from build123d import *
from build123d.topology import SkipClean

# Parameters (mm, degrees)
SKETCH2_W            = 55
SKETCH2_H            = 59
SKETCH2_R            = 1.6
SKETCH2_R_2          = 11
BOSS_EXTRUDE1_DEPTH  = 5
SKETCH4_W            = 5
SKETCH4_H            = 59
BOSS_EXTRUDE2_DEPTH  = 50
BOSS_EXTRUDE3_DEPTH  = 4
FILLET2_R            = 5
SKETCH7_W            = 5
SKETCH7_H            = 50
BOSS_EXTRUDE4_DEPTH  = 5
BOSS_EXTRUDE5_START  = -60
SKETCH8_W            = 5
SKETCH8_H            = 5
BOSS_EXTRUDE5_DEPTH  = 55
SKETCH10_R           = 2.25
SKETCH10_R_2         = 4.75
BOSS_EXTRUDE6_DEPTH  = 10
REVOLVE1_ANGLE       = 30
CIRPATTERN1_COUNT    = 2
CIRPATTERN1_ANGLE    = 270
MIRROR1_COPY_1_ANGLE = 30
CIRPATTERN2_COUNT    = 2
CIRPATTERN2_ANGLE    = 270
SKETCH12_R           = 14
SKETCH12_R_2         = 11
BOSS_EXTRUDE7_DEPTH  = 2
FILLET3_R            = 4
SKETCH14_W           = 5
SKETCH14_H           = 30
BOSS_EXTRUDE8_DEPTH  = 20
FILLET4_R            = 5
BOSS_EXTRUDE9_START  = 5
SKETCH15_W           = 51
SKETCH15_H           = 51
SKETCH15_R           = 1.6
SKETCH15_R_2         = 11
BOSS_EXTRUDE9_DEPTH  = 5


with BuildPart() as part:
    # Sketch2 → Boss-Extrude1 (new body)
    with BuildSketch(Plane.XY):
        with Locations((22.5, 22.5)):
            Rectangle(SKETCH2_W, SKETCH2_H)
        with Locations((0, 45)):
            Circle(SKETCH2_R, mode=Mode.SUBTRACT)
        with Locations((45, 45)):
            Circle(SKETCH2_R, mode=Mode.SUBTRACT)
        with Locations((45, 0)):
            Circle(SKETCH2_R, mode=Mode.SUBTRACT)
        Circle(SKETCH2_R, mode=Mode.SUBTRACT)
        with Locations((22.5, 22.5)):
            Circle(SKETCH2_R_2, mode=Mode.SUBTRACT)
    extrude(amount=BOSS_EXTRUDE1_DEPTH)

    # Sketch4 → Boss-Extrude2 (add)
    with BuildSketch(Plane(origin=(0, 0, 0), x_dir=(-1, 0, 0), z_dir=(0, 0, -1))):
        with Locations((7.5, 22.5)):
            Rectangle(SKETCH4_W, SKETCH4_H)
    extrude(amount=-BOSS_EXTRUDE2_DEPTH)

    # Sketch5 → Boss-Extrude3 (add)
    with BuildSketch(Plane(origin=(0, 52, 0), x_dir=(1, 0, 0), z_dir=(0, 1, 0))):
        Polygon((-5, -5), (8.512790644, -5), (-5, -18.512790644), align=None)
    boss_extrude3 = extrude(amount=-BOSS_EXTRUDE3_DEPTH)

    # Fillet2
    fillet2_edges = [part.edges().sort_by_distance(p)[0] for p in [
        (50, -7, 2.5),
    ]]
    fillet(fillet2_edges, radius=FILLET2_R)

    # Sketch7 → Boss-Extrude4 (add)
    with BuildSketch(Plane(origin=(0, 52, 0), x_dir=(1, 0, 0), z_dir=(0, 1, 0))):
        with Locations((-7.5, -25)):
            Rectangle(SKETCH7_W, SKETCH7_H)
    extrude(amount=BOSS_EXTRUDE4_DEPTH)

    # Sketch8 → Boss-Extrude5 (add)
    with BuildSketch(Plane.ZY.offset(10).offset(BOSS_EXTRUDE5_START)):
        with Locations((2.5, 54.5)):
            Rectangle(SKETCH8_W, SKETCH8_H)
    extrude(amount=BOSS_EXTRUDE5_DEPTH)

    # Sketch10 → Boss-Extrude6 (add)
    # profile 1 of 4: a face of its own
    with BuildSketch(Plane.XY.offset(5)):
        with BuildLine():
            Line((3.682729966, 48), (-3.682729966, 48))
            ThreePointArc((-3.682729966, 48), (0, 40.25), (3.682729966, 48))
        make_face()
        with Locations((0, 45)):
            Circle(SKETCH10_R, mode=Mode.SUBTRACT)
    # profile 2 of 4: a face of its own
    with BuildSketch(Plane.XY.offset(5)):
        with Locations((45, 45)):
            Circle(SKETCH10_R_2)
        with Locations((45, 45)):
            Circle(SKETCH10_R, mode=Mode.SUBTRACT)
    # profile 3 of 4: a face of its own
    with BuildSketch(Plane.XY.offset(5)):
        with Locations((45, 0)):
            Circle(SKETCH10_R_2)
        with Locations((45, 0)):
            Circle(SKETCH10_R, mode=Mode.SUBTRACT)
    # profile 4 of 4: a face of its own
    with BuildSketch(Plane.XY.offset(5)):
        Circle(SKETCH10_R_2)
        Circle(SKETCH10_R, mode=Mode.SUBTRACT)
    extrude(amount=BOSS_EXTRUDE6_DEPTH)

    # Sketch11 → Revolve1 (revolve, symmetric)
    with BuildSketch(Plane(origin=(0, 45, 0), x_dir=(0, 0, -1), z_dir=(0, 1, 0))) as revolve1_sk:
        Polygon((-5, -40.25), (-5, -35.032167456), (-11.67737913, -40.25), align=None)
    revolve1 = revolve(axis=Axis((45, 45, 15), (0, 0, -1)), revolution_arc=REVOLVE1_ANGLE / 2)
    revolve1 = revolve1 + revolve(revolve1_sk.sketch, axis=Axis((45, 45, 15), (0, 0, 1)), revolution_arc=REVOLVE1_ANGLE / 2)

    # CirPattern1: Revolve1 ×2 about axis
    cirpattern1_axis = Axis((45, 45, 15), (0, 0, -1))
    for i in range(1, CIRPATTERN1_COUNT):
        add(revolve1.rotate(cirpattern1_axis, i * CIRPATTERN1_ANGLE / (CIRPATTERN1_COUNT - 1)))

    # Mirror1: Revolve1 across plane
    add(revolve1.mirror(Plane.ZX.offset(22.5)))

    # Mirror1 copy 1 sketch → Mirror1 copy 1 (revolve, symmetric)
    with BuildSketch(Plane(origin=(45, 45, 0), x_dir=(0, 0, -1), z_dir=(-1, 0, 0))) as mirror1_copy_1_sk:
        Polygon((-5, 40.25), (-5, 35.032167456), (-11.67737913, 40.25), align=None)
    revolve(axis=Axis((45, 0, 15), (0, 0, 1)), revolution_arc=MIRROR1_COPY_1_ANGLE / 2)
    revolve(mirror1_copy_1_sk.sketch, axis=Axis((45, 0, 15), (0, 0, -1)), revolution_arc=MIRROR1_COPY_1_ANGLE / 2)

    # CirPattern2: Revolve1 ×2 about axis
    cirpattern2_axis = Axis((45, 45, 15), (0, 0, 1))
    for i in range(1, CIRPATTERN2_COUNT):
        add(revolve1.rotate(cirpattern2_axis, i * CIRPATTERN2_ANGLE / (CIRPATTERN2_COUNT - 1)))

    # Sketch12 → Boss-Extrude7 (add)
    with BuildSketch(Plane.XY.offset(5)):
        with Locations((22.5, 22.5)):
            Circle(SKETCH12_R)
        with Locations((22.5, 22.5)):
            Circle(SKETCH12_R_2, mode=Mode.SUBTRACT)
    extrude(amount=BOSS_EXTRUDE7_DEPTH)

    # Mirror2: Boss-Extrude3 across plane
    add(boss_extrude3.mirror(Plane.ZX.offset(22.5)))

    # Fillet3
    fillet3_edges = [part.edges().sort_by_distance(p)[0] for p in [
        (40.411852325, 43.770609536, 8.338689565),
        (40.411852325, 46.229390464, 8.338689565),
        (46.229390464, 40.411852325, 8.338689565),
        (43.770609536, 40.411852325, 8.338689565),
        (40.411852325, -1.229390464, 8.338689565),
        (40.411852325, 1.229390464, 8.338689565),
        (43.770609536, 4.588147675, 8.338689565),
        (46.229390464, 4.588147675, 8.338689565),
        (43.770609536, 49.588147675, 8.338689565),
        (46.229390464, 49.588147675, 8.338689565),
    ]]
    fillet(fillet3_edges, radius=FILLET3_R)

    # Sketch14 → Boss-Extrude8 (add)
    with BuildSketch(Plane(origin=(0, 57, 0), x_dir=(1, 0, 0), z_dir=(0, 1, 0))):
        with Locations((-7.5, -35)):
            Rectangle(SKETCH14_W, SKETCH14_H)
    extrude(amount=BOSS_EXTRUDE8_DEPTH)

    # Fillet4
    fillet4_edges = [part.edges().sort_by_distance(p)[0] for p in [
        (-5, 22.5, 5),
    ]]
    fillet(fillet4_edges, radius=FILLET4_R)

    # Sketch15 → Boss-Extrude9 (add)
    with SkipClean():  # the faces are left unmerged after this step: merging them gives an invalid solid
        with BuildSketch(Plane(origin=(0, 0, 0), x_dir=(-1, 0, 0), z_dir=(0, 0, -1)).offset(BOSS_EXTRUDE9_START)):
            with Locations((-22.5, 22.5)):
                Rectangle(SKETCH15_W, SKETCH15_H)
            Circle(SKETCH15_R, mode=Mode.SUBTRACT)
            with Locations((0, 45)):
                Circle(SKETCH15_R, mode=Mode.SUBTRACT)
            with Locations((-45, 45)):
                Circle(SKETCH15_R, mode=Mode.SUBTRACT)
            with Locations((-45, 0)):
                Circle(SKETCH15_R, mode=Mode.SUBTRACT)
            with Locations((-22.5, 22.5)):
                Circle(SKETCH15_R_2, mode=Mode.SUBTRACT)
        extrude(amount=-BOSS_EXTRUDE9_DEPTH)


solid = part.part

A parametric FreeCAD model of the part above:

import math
import FreeCAD as App
import Part
import Sketcher
Q = App.Units.Quantity


def edges_at(feature, points):
    """Names of the edges that pass closest to the given points."""
    edges = feature.Shape.Edges
    near = lambda p: min(range(len(edges)), key=lambda i: edges[i].distToShape(Part.Vertex(*p))[0])
    return sorted({f"Edge{near(p) + 1}" for p in points})

doc = App.newDocument("Part")
body = doc.addObject("PartDesign::Body", "Body")

sketch1 = doc.addObject("Sketcher::SketchObject", "Sketch")
body.addObject(sketch1)
sketch1.AttachmentSupport = (doc.XY_Plane, [""])
sketch1.MapMode = "FlatFace"
sketch1.addGeometry(Part.LineSegment(App.Vector(-5, 52, 0), App.Vector(-5, -7, 0)), False)
sketch1.addGeometry(Part.LineSegment(App.Vector(-5, -7, 0), App.Vector(50, -7, 0)), False)
sketch1.addGeometry(Part.LineSegment(App.Vector(50, -7, 0), App.Vector(50, 52, 0)), False)
sketch1.addGeometry(Part.LineSegment(App.Vector(50, 52, 0), App.Vector(-5, 52, 0)), False)
sketch1.addGeometry(Part.Circle(App.Vector(0, 0, 0), App.Vector(0, 0, 1), 1.6), False)
sketch1.addGeometry(Part.Circle(App.Vector(45, 0, 0), App.Vector(0, 0, 1), 1.6), False)
sketch1.addGeometry(Part.Circle(App.Vector(0, 45, 0), App.Vector(0, 0, 1), 1.6), False)
sketch1.addGeometry(Part.Circle(App.Vector(22.5, 22.5, 0), App.Vector(0, 0, 1), 11), False)
sketch1.addGeometry(Part.Circle(App.Vector(45, 45, 0), App.Vector(0, 0, 1), 1.6), False)
sketch1.addConstraint(Sketcher.Constraint("Coincident", 0, 2, 1, 1))
sketch1.addConstraint(Sketcher.Constraint("Coincident", 1, 2, 2, 1))
sketch1.addConstraint(Sketcher.Constraint("Coincident", 2, 2, 3, 1))
sketch1.addConstraint(Sketcher.Constraint("Coincident", 3, 2, 0, 1))
sketch1.addConstraint(Sketcher.Constraint("Vertical", 0))
sketch1.addConstraint(Sketcher.Constraint("Horizontal", 1))
sketch1.addConstraint(Sketcher.Constraint("Vertical", 2))
sketch1.addConstraint(Sketcher.Constraint("Horizontal", 3))
sketch1.addConstraint(Sketcher.Constraint("Coincident", 4, 3, -1, 1))
sketch1.addConstraint(Sketcher.Constraint("Equal", 4, 5))
sketch1.addConstraint(Sketcher.Constraint("Equal", 5, 6))
sketch1.addConstraint(Sketcher.Constraint("Equal", 6, 8))
sketch1.addConstraint(Sketcher.Constraint("PointOnObject", 5, 3, -1))
sketch1.addConstraint(Sketcher.Constraint("PointOnObject", 6, 3, -2))
sketch1.addConstraint(Sketcher.Constraint("Horizontal", 6, 3, 8, 3))
sketch1.addConstraint(Sketcher.Constraint("Vertical", 5, 3, 8, 3))
sketch1.addConstraint(Sketcher.Constraint("Diameter", 7, Q("22 mm")))
sketch1.addConstraint(Sketcher.Constraint("Diameter", 4, Q("3.2 mm")))
sketch1.addConstraint(Sketcher.Constraint("DistanceX", 1, 1, 1, 2, Q("55 mm")))
sketch1.addConstraint(Sketcher.Constraint("DistanceY", 0, 2, 0, 1, Q("59 mm")))
sketch1.addConstraint(Sketcher.Constraint("DistanceX", -1, 1, 5, 3, Q("45 mm")))
sketch1.addConstraint(Sketcher.Constraint("DistanceY", -1, 1, 6, 3, Q("45 mm")))
sketch1.addConstraint(Sketcher.Constraint("DistanceX", 0, 2, -1, 1, Q("5 mm")))
sketch1.addConstraint(Sketcher.Constraint("DistanceY", 0, 2, -1, 1, Q("7 mm")))
sketch1.addConstraint(Sketcher.Constraint("DistanceX", -1, 1, 7, 3, Q("22.5 mm")))
sketch1.addConstraint(Sketcher.Constraint("DistanceY", -1, 1, 7, 3, Q("22.5 mm")))
pad1 = doc.addObject("PartDesign::Pad", "Pad")
body.addObject(pad1)
pad1.Profile = sketch1
pad1.Length = 5

sketch2 = doc.addObject("Sketcher::SketchObject", "Sketch001")
body.addObject(sketch2)
sketch2.AttachmentSupport = (doc.XY_Plane, [""])
sketch2.MapMode = "FlatFace"
sketch2.addGeometry(Part.LineSegment(App.Vector(-5, 52, 0), App.Vector(-5, -7, 0)), False)
sketch2.addGeometry(Part.LineSegment(App.Vector(-5, -7, 0), App.Vector(-10, -7, 0)), False)
sketch2.addGeometry(Part.LineSegment(App.Vector(-10, -7, 0), App.Vector(-10, 52, 0)), False)
sketch2.addGeometry(Part.LineSegment(App.Vector(-10, 52, 0), App.Vector(-5, 52, 0)), False)
sketch2.addConstraint(Sketcher.Constraint("Coincident", 0, 2, 1, 1))
sketch2.addConstraint(Sketcher.Constraint("Coincident", 1, 2, 2, 1))
sketch2.addConstraint(Sketcher.Constraint("Coincident", 2, 2, 3, 1))
sketch2.addConstraint(Sketcher.Constraint("Coincident", 3, 2, 0, 1))
sketch2.addConstraint(Sketcher.Constraint("Vertical", 0))
sketch2.addConstraint(Sketcher.Constraint("Horizontal", 1))
sketch2.addConstraint(Sketcher.Constraint("Vertical", 2))
sketch2.addConstraint(Sketcher.Constraint("Horizontal", 3))
sketch2.addConstraint(Sketcher.Constraint("DistanceX", 1, 2, 1, 1, Q("5 mm")))
sketch2.addConstraint(Sketcher.Constraint("DistanceY", 0, 2, 0, 1, Q("59 mm")))
sketch2.addConstraint(Sketcher.Constraint("DistanceX", 0, 2, -1, 1, Q("5 mm")))
sketch2.addConstraint(Sketcher.Constraint("DistanceY", 0, 2, -1, 1, Q("7 mm")))
pad2 = doc.addObject("PartDesign::Pad", "Pad001")
body.addObject(pad2)
pad2.Profile = sketch2
pad2.Length = 50

sketch3 = doc.addObject("Sketcher::SketchObject", "Sketch002")
body.addObject(sketch3)
sketch3.AttachmentSupport = (doc.XZ_Plane, [""])
sketch3.MapMode = "FlatFace"
sketch3.AttachmentOffset = App.Placement(App.Vector(0, 0, -52), App.Rotation())
sketch3.addGeometry(Part.LineSegment(App.Vector(9, 5, 0), App.Vector(-5, 5, 0)), False)
sketch3.addGeometry(Part.LineSegment(App.Vector(-5, 5, 0), App.Vector(-5, 19, 0)), False)
sketch3.addGeometry(Part.LineSegment(App.Vector(-5, 19, 0), App.Vector(9, 5, 0)), False)
sketch3.addConstraint(Sketcher.Constraint("Coincident", 0, 2, 1, 1))
sketch3.addConstraint(Sketcher.Constraint("Coincident", 1, 2, 2, 1))
sketch3.addConstraint(Sketcher.Constraint("Coincident", 2, 2, 0, 1))
sketch3.addConstraint(Sketcher.Constraint("Horizontal", 0))
sketch3.addConstraint(Sketcher.Constraint("Vertical", 1))
sketch3.addConstraint(Sketcher.Constraint("Equal", 0, 1))
sketch3.addConstraint(Sketcher.Constraint("DistanceX", 0, 2, -1, 1, Q("5 mm")))
sketch3.addConstraint(Sketcher.Constraint("DistanceY", -1, 1, 0, 2, Q("5 mm")))
sketch3.addConstraint(Sketcher.Constraint("DistanceX", 0, 2, 0, 1, Q("13.512791 mm")))
pad3 = doc.addObject("PartDesign::Pad", "Pad002")
body.addObject(pad3)
pad3.Profile = sketch3
pad3.Length = 4
doc.recompute()

fillet = doc.addObject("PartDesign::Fillet", "Fillet")
body.addObject(fillet)
fillet.Base = (pad3, edges_at(pad3, [(50, -7, 2.5)]))
fillet.Radius = 5

sketch4 = doc.addObject("Sketcher::SketchObject", "Sketch003")
body.addObject(sketch4)
sketch4.AttachmentSupport = (doc.XZ_Plane, [""])
sketch4.MapMode = "FlatFace"
sketch4.AttachmentOffset = App.Placement(App.Vector(0, 0, -52), App.Rotation())
sketch4.addGeometry(Part.LineSegment(App.Vector(-10, 0, 0), App.Vector(-10, 50, 0)), False)
sketch4.addGeometry(Part.LineSegment(App.Vector(-10, 50, 0), App.Vector(-5, 50, 0)), False)
sketch4.addGeometry(Part.LineSegment(App.Vector(-5, 50, 0), App.Vector(-5, 0, 0)), False)
sketch4.addGeometry(Part.LineSegment(App.Vector(-5, 0, 0), App.Vector(-10, 0, 0)), False)
sketch4.addConstraint(Sketcher.Constraint("Coincident", 0, 2, 1, 1))
sketch4.addConstraint(Sketcher.Constraint("Coincident", 1, 2, 2, 1))
sketch4.addConstraint(Sketcher.Constraint("Coincident", 2, 2, 3, 1))
sketch4.addConstraint(Sketcher.Constraint("Coincident", 3, 2, 0, 1))
sketch4.addConstraint(Sketcher.Constraint("Vertical", 0))
sketch4.addConstraint(Sketcher.Constraint("Horizontal", 1))
sketch4.addConstraint(Sketcher.Constraint("Vertical", 2))
sketch4.addConstraint(Sketcher.Constraint("Horizontal", 3))
sketch4.addConstraint(Sketcher.Constraint("PointOnObject", 2, 2, -1))
sketch4.addConstraint(Sketcher.Constraint("DistanceX", 1, 1, 1, 2, Q("5 mm")))
sketch4.addConstraint(Sketcher.Constraint("DistanceY", 0, 1, 0, 2, Q("50 mm")))
sketch4.addConstraint(Sketcher.Constraint("DistanceX", 0, 2, -1, 1, Q("10 mm")))
pad4 = doc.addObject("PartDesign::Pad", "Pad003")
body.addObject(pad4)
pad4.Profile = sketch4
pad4.Length = 5
pad4.Reversed = True

sketch5 = doc.addObject("Sketcher::SketchObject", "Sketch004")
body.addObject(sketch5)
sketch5.AttachmentSupport = (doc.YZ_Plane, [""])
sketch5.MapMode = "FlatFace"
sketch5.AttachmentOffset = App.Placement(App.Vector(0, 0, 50), App.Rotation())
sketch5.addGeometry(Part.LineSegment(App.Vector(57, 0, 0), App.Vector(52, 0, 0)), False)
sketch5.addGeometry(Part.LineSegment(App.Vector(52, 0, 0), App.Vector(52, 5, 0)), False)
sketch5.addGeometry(Part.LineSegment(App.Vector(52, 5, 0), App.Vector(57, 5, 0)), False)
sketch5.addGeometry(Part.LineSegment(App.Vector(57, 5, 0), App.Vector(57, 0, 0)), False)
sketch5.addConstraint(Sketcher.Constraint("Coincident", 0, 2, 1, 1))
sketch5.addConstraint(Sketcher.Constraint("Coincident", 1, 2, 2, 1))
sketch5.addConstraint(Sketcher.Constraint("Coincident", 2, 2, 3, 1))
sketch5.addConstraint(Sketcher.Constraint("Coincident", 3, 2, 0, 1))
sketch5.addConstraint(Sketcher.Constraint("Horizontal", 0))
sketch5.addConstraint(Sketcher.Constraint("Vertical", 1))
sketch5.addConstraint(Sketcher.Constraint("Horizontal", 2))
sketch5.addConstraint(Sketcher.Constraint("Vertical", 3))
sketch5.addConstraint(Sketcher.Constraint("PointOnObject", 0, 2, -1))
sketch5.addConstraint(Sketcher.Constraint("Equal", 2, 1))
sketch5.addConstraint(Sketcher.Constraint("DistanceX", 0, 2, 0, 1, Q("5 mm")))
sketch5.addConstraint(Sketcher.Constraint("DistanceX", -1, 1, 0, 2, Q("52 mm")))
pad5 = doc.addObject("PartDesign::Pad", "Pad004")
body.addObject(pad5)
pad5.Profile = sketch5
pad5.Length = 55
pad5.Reversed = True

sketch6 = doc.addObject("Sketcher::SketchObject", "Sketch005")
body.addObject(sketch6)
sketch6.AttachmentSupport = (doc.XY_Plane, [""])
sketch6.MapMode = "FlatFace"
sketch6.AttachmentOffset = App.Placement(App.Vector(0, 0, 5), App.Rotation())
sketch6.addGeometry(Part.LineSegment(App.Vector(3.7, 48, 0), App.Vector(-3.7, 48, 0)), False)
sketch6.addGeometry(Part.ArcOfCircle(Part.Circle(App.Vector(0, 45, 0), App.Vector(0, 0, 1), 4.8), math.radians(141), math.radians(399)), False)
sketch6.addGeometry(Part.Circle(App.Vector(0, 45, 0), App.Vector(0, 0, 1), 2.2), False)
sketch6.addGeometry(Part.Circle(App.Vector(45, 45, 0), App.Vector(0, 0, 1), 4.8), False)
sketch6.addGeometry(Part.Circle(App.Vector(45, 45, 0), App.Vector(0, 0, 1), 2.2), False)
sketch6.addGeometry(Part.Circle(App.Vector(45, 0, 0), App.Vector(0, 0, 1), 4.8), False)
sketch6.addGeometry(Part.Circle(App.Vector(45, 0, 0), App.Vector(0, 0, 1), 2.2), False)
sketch6.addGeometry(Part.Circle(App.Vector(0, 0, 0), App.Vector(0, 0, 1), 4.8), False)
sketch6.addGeometry(Part.Circle(App.Vector(0, 0, 0), App.Vector(0, 0, 1), 2.2), False)
sketch6.addConstraint(Sketcher.Constraint("Coincident", 0, 1, 1, 2))
sketch6.addConstraint(Sketcher.Constraint("Coincident", 1, 1, 0, 2))
sketch6.addConstraint(Sketcher.Constraint("Horizontal", 0))
sketch6.addConstraint(Sketcher.Constraint("Coincident", 7, 3, -1, 1))
sketch6.addConstraint(Sketcher.Constraint("Coincident", 8, 3, -1, 1))
sketch6.addConstraint(Sketcher.Constraint("Coincident", 2, 3, 1, 3))
sketch6.addConstraint(Sketcher.Constraint("Coincident", 4, 3, 3, 3))
sketch6.addConstraint(Sketcher.Constraint("Coincident", 6, 3, 5, 3))
sketch6.addConstraint(Sketcher.Constraint("Equal", 1, 3))
sketch6.addConstraint(Sketcher.Constraint("Equal", 2, 4))
sketch6.addConstraint(Sketcher.Constraint("Equal", 3, 5))
sketch6.addConstraint(Sketcher.Constraint("Equal", 4, 6))
sketch6.addConstraint(Sketcher.Constraint("Equal", 5, 7))
sketch6.addConstraint(Sketcher.Constraint("Equal", 6, 8))
sketch6.addConstraint(Sketcher.Constraint("PointOnObject", 1, 3, -2))
sketch6.addConstraint(Sketcher.Constraint("PointOnObject", 5, 3, -1))
sketch6.addConstraint(Sketcher.Constraint("Horizontal", 2, 3, 3, 3))
sketch6.addConstraint(Sketcher.Constraint("Vertical", 4, 3, 5, 3))
sketch6.addConstraint(Sketcher.Constraint("Diameter", 2, Q("4.5 mm")))
sketch6.addConstraint(Sketcher.Constraint("Diameter", 3, Q("9.5 mm")))
sketch6.addConstraint(Sketcher.Constraint("DistanceY", -1, 1, 1, 3, Q("45 mm")))
sketch6.addConstraint(Sketcher.Constraint("DistanceX", -1, 1, 3, 3, Q("45 mm")))
sketch6.addConstraint(Sketcher.Constraint("DistanceY", -1, 1, 0, 1, Q("48 mm")))
pad6 = doc.addObject("PartDesign::Pad", "Pad005")
body.addObject(pad6)
pad6.Profile = sketch6
pad6.Length = 10

sketch7 = doc.addObject("Sketcher::SketchObject", "Sketch006")
body.addObject(sketch7)
sketch7.AttachmentSupport = (doc.XZ_Plane, [""])
sketch7.MapMode = "FlatFace"
sketch7.AttachmentOffset = App.Placement(App.Vector(0, 0, -45), App.Rotation())
sketch7.addGeometry(Part.LineSegment(App.Vector(40, 5, 0), App.Vector(35, 5, 0)), False)
sketch7.addGeometry(Part.LineSegment(App.Vector(35, 5, 0), App.Vector(40, 12, 0)), False)
sketch7.addGeometry(Part.LineSegment(App.Vector(40, 12, 0), App.Vector(40, 5, 0)), False)
sketch7.addGeometry(Part.LineSegment(App.Vector(45, 12, 0), App.Vector(45, 5, 0)), True)
sketch7.addConstraint(Sketcher.Constraint("Coincident", 0, 2, 1, 1))
sketch7.addConstraint(Sketcher.Constraint("Coincident", 1, 2, 2, 1))
sketch7.addConstraint(Sketcher.Constraint("Coincident", 2, 2, 0, 1))
sketch7.addConstraint(Sketcher.Constraint("Horizontal", 0))
sketch7.addConstraint(Sketcher.Constraint("Vertical", 2))
sketch7.addConstraint(Sketcher.Constraint("Vertical", 3))
sketch7.addConstraint(Sketcher.Constraint("Horizontal", 1, 2, 3, 1))
sketch7.addConstraint(Sketcher.Constraint("Horizontal", 2, 2, 3, 2))
sketch7.addConstraint(Sketcher.Constraint("DistanceY", -1, 1, 0, 2, Q("5 mm")))
sketch7.addConstraint(Sketcher.Constraint("DistanceX", -1, 1, 3, 1, Q("45 mm")))
sketch7.addConstraint(Sketcher.Constraint("DistanceX", -1, 1, 1, 2, Q("40.25 mm")))
sketch7.addConstraint(Sketcher.Constraint("DistanceY", 2, 2, 2, 1, Q("6.677379 mm")))
sketch7.addConstraint(Sketcher.Constraint("DistanceX", 0, 2, 0, 1, Q("5.217833 mm")))
revolution = doc.addObject("PartDesign::Revolution", "Revolution")
body.addObject(revolution)
revolution.Profile = sketch7
revolution.ReferenceAxis = (sketch7, ["Axis0"])
revolution.Angle = 15

sketch8 = doc.addObject("Sketcher::SketchObject", "Sketch007")
body.addObject(sketch8)
sketch8.AttachmentSupport = (doc.XZ_Plane, [""])
sketch8.MapMode = "FlatFace"
sketch8.AttachmentOffset = App.Placement(App.Vector(0, 0, -45), App.Rotation())
sketch8.addGeometry(Part.LineSegment(App.Vector(40, 5, 0), App.Vector(35, 5, 0)), False)
sketch8.addGeometry(Part.LineSegment(App.Vector(35, 5, 0), App.Vector(40, 12, 0)), False)
sketch8.addGeometry(Part.LineSegment(App.Vector(40, 12, 0), App.Vector(40, 5, 0)), False)
sketch8.addGeometry(Part.LineSegment(App.Vector(45, 5, 0), App.Vector(45, 12, 0)), True)
sketch8.addConstraint(Sketcher.Constraint("Coincident", 0, 2, 1, 1))
sketch8.addConstraint(Sketcher.Constraint("Coincident", 1, 2, 2, 1))
sketch8.addConstraint(Sketcher.Constraint("Coincident", 2, 2, 0, 1))
sketch8.addConstraint(Sketcher.Constraint("Horizontal", 0))
sketch8.addConstraint(Sketcher.Constraint("Vertical", 2))
sketch8.addConstraint(Sketcher.Constraint("Vertical", 3))
sketch8.addConstraint(Sketcher.Constraint("Horizontal", 2, 2, 3, 1))
sketch8.addConstraint(Sketcher.Constraint("Horizontal", 1, 2, 3, 2))
sketch8.addConstraint(Sketcher.Constraint("DistanceY", -1, 1, 0, 2, Q("5 mm")))
sketch8.addConstraint(Sketcher.Constraint("DistanceX", -1, 1, 3, 1, Q("45 mm")))
sketch8.addConstraint(Sketcher.Constraint("DistanceX", -1, 1, 1, 2, Q("40.25 mm")))
sketch8.addConstraint(Sketcher.Constraint("DistanceY", 2, 2, 2, 1, Q("6.677379 mm")))
sketch8.addConstraint(Sketcher.Constraint("DistanceX", 0, 2, 0, 1, Q("5.217833 mm")))
revolution2 = doc.addObject("PartDesign::Revolution", "Revolution001")
body.addObject(revolution2)
revolution2.Profile = sketch8
revolution2.ReferenceAxis = (sketch8, ["Axis0"])
revolution2.Angle = 15
doc.recompute()

datumline = doc.addObject("PartDesign::Line", "DatumLine")
body.addObject(datumline)
datumline.Placement = App.Placement(App.Vector(45, 45, 0), App.Rotation(App.Vector(0, 0, 1), App.Vector(0, 0, -1)))
polarpattern = doc.addObject("PartDesign::PolarPattern", "PolarPattern")
body.addObject(polarpattern)
polarpattern.Originals = [revolution, revolution2]
polarpattern.Axis = (datumline, [""])
polarpattern.Angle = 270
polarpattern.Occurrences = 2
body.Tip = polarpattern
doc.recompute()

datumplane = doc.addObject("PartDesign::Plane", "DatumPlane")
body.addObject(datumplane)
datumplane.AttachmentSupport = (doc.XZ_Plane, [""])
datumplane.MapMode = "FlatFace"
datumplane.AttachmentOffset = App.Placement(App.Vector(0, 0, -22.5), App.Rotation())
mirrored = doc.addObject("PartDesign::Mirrored", "Mirrored")
body.addObject(mirrored)
mirrored.Originals = [revolution, revolution2]
mirrored.MirrorPlane = (datumplane, [""])
body.Tip = mirrored

sketch9 = doc.addObject("Sketcher::SketchObject", "Sketch008")
body.addObject(sketch9)
sketch9.AttachmentSupport = (doc.YZ_Plane, [""])
sketch9.MapMode = "FlatFace"
sketch9.AttachmentOffset = App.Placement(App.Vector(0, 0, 45), App.Rotation())
sketch9.addGeometry(Part.LineSegment(App.Vector(10, 5, 0), App.Vector(5, 5, 0)), False)
sketch9.addGeometry(Part.LineSegment(App.Vector(5, 5, 0), App.Vector(5, 12, 0)), False)
sketch9.addGeometry(Part.LineSegment(App.Vector(5, 12, 0), App.Vector(10, 5, 0)), False)
sketch9.addConstraint(Sketcher.Constraint("Coincident", 0, 2, 1, 1))
sketch9.addConstraint(Sketcher.Constraint("Coincident", 1, 2, 2, 1))
sketch9.addConstraint(Sketcher.Constraint("Coincident", 2, 2, 0, 1))
sketch9.addConstraint(Sketcher.Constraint("Horizontal", 0))
sketch9.addConstraint(Sketcher.Constraint("Vertical", 1))
sketch9.addConstraint(Sketcher.Constraint("DistanceY", -1, 1, 0, 2, Q("5 mm")))
sketch9.addConstraint(Sketcher.Constraint("DistanceX", -1, 1, 0, 2, Q("4.75 mm")))
sketch9.addConstraint(Sketcher.Constraint("DistanceY", 1, 1, 1, 2, Q("6.677379 mm")))
sketch9.addConstraint(Sketcher.Constraint("DistanceX", 0, 2, 0, 1, Q("5.217833 mm")))
revolution3 = doc.addObject("PartDesign::Revolution", "Revolution002")
body.addObject(revolution3)
revolution3.Profile = sketch9
revolution3.ReferenceAxis = (sketch9, ["V_Axis"])
revolution3.Angle = 15

sketch10 = doc.addObject("Sketcher::SketchObject", "Sketch009")
body.addObject(sketch10)
sketch10.AttachmentSupport = (doc.YZ_Plane, [""])
sketch10.MapMode = "FlatFace"
sketch10.AttachmentOffset = App.Placement(App.Vector(0, 0, 45), App.Rotation())
sketch10.addGeometry(Part.LineSegment(App.Vector(10, 5, 0), App.Vector(5, 5, 0)), False)
sketch10.addGeometry(Part.LineSegment(App.Vector(5, 5, 0), App.Vector(5, 12, 0)), False)
sketch10.addGeometry(Part.LineSegment(App.Vector(5, 12, 0), App.Vector(10, 5, 0)), False)
sketch10.addConstraint(Sketcher.Constraint("Coincident", 0, 2, 1, 1))
sketch10.addConstraint(Sketcher.Constraint("Coincident", 1, 2, 2, 1))
sketch10.addConstraint(Sketcher.Constraint("Coincident", 2, 2, 0, 1))
sketch10.addConstraint(Sketcher.Constraint("Horizontal", 0))
sketch10.addConstraint(Sketcher.Constraint("Vertical", 1))
sketch10.addConstraint(Sketcher.Constraint("DistanceY", -1, 1, 0, 2, Q("5 mm")))
sketch10.addConstraint(Sketcher.Constraint("DistanceX", -1, 1, 0, 2, Q("4.75 mm")))
sketch10.addConstraint(Sketcher.Constraint("DistanceY", 1, 1, 1, 2, Q("6.677379 mm")))
sketch10.addConstraint(Sketcher.Constraint("DistanceX", 0, 2, 0, 1, Q("5.217833 mm")))
revolution4 = doc.addObject("PartDesign::Revolution", "Revolution003")
body.addObject(revolution4)
revolution4.Profile = sketch10
revolution4.ReferenceAxis = (sketch10, ["V_Axis"])
revolution4.Angle = 15
revolution4.Reversed = True
doc.recompute()

datumline2 = doc.addObject("PartDesign::Line", "DatumLine001")
body.addObject(datumline2)
datumline2.Placement = App.Placement(App.Vector(45, 45, 0), App.Rotation(App.Vector(0, 0, 1), App.Vector(0, 0, 1)))
polarpattern2 = doc.addObject("PartDesign::PolarPattern", "PolarPattern001")
body.addObject(polarpattern2)
polarpattern2.Originals = [revolution, revolution2]
polarpattern2.Axis = (datumline2, [""])
polarpattern2.Angle = 270
polarpattern2.Occurrences = 2
body.Tip = polarpattern2

sketch11 = doc.addObject("Sketcher::SketchObject", "Sketch010")
body.addObject(sketch11)
sketch11.AttachmentSupport = (doc.XY_Plane, [""])
sketch11.MapMode = "FlatFace"
sketch11.AttachmentOffset = App.Placement(App.Vector(0, 0, 5), App.Rotation())
sketch11.addGeometry(Part.Circle(App.Vector(22, 22, 0), App.Vector(0, 0, 1), 14), False)
sketch11.addGeometry(Part.Circle(App.Vector(22, 22, 0), App.Vector(0, 0, 1), 11), False)
sketch11.addConstraint(Sketcher.Constraint("Coincident", 1, 3, 0, 3))
sketch11.addConstraint(Sketcher.Constraint("Diameter", 0, Q("28 mm")))
sketch11.addConstraint(Sketcher.Constraint("Diameter", 1, Q("22 mm")))
sketch11.addConstraint(Sketcher.Constraint("DistanceX", -1, 1, 0, 3, Q("22.5 mm")))
sketch11.addConstraint(Sketcher.Constraint("DistanceY", -1, 1, 0, 3, Q("22.5 mm")))
pad7 = doc.addObject("PartDesign::Pad", "Pad006")
body.addObject(pad7)
pad7.Profile = sketch11
pad7.Length = 2
doc.recompute()

datumplane2 = doc.addObject("PartDesign::Plane", "DatumPlane001")
body.addObject(datumplane2)
datumplane2.AttachmentSupport = (doc.XZ_Plane, [""])
datumplane2.MapMode = "FlatFace"
datumplane2.AttachmentOffset = App.Placement(App.Vector(0, 0, -22.5), App.Rotation())
mirrored2 = doc.addObject("PartDesign::Mirrored", "Mirrored001")
body.addObject(mirrored2)
mirrored2.Originals = [pad3]
mirrored2.MirrorPlane = (datumplane2, [""])
body.Tip = mirrored2
doc.recompute()

fillet2 = doc.addObject("PartDesign::Fillet", "Fillet001")
body.addObject(fillet2)
fillet2.Base = (mirrored2, edges_at(mirrored2, [
    (40.412, 43.771, 8.339),
    (40.412, 46.229, 8.339),
    (46.229, 40.412, 8.339),
    (43.771, 40.412, 8.339),
    (40.412, -1.229, 8.339),
    (40.412, 1.229, 8.339),
    (43.771, 4.588, 8.339),
    (46.229, 4.588, 8.339),
    (43.771, 49.588, 8.339),
    (46.229, 49.588, 8.339),
]))
fillet2.Radius = 4

sketch12 = doc.addObject("Sketcher::SketchObject", "Sketch011")
body.addObject(sketch12)
sketch12.AttachmentSupport = (doc.XZ_Plane, [""])
sketch12.MapMode = "FlatFace"
sketch12.AttachmentOffset = App.Placement(App.Vector(0, 0, -57), App.Rotation())
sketch12.addGeometry(Part.LineSegment(App.Vector(-10, 20, 0), App.Vector(-10, 50, 0)), False)
sketch12.addGeometry(Part.LineSegment(App.Vector(-10, 50, 0), App.Vector(-5, 50, 0)), False)
sketch12.addGeometry(Part.LineSegment(App.Vector(-5, 50, 0), App.Vector(-5, 20, 0)), False)
sketch12.addGeometry(Part.LineSegment(App.Vector(-5, 20, 0), App.Vector(-10, 20, 0)), False)
sketch12.addConstraint(Sketcher.Constraint("Coincident", 0, 2, 1, 1))
sketch12.addConstraint(Sketcher.Constraint("Coincident", 1, 2, 2, 1))
sketch12.addConstraint(Sketcher.Constraint("Coincident", 2, 2, 3, 1))
sketch12.addConstraint(Sketcher.Constraint("Coincident", 3, 2, 0, 1))
sketch12.addConstraint(Sketcher.Constraint("Vertical", 0))
sketch12.addConstraint(Sketcher.Constraint("Horizontal", 1))
sketch12.addConstraint(Sketcher.Constraint("Vertical", 2))
sketch12.addConstraint(Sketcher.Constraint("Horizontal", 3))
sketch12.addConstraint(Sketcher.Constraint("DistanceX", 1, 1, 1, 2, Q("5 mm")))
sketch12.addConstraint(Sketcher.Constraint("DistanceY", 0, 1, 0, 2, Q("30 mm")))
sketch12.addConstraint(Sketcher.Constraint("DistanceX", 0, 2, -1, 1, Q("10 mm")))
sketch12.addConstraint(Sketcher.Constraint("DistanceY", -1, 1, 0, 2, Q("50 mm")))
pad8 = doc.addObject("PartDesign::Pad", "Pad007")
body.addObject(pad8)
pad8.Profile = sketch12
pad8.Length = 20
pad8.Reversed = True
doc.recompute()

fillet3 = doc.addObject("PartDesign::Fillet", "Fillet002")
body.addObject(fillet3)
fillet3.Base = (pad8, edges_at(pad8, [(-5, 22.5, 5)]))
fillet3.Radius = 5

sketch13 = doc.addObject("Sketcher::SketchObject", "Sketch012")
body.addObject(sketch13)
sketch13.AttachmentSupport = (doc.XY_Plane, [""])
sketch13.MapMode = "FlatFace"
sketch13.AttachmentOffset = App.Placement(App.Vector(0, 0, -5), App.Rotation())
sketch13.addGeometry(Part.LineSegment(App.Vector(48, 48, 0), App.Vector(48, -3, 0)), False)
sketch13.addGeometry(Part.LineSegment(App.Vector(48, -3, 0), App.Vector(-3, -3, 0)), False)
sketch13.addGeometry(Part.LineSegment(App.Vector(-3, -3, 0), App.Vector(-3, 48, 0)), False)
sketch13.addGeometry(Part.LineSegment(App.Vector(-3, 48, 0), App.Vector(48, 48, 0)), False)
sketch13.addGeometry(Part.Circle(App.Vector(45, 0, 0), App.Vector(0, 0, 1), 1.6), False)
sketch13.addGeometry(Part.Circle(App.Vector(0, 0, 0), App.Vector(0, 0, 1), 1.6), False)
sketch13.addGeometry(Part.Circle(App.Vector(45, 45, 0), App.Vector(0, 0, 1), 1.6), False)
sketch13.addGeometry(Part.Circle(App.Vector(22.5, 22.5, 0), App.Vector(0, 0, 1), 11), False)
sketch13.addGeometry(Part.Circle(App.Vector(0, 45, 0), App.Vector(0, 0, 1), 1.6), False)
sketch13.addConstraint(Sketcher.Constraint("Coincident", 0, 2, 1, 1))
sketch13.addConstraint(Sketcher.Constraint("Coincident", 1, 2, 2, 1))
sketch13.addConstraint(Sketcher.Constraint("Coincident", 2, 2, 3, 1))
sketch13.addConstraint(Sketcher.Constraint("Coincident", 3, 2, 0, 1))
sketch13.addConstraint(Sketcher.Constraint("Vertical", 0))
sketch13.addConstraint(Sketcher.Constraint("Horizontal", 1))
sketch13.addConstraint(Sketcher.Constraint("Vertical", 2))
sketch13.addConstraint(Sketcher.Constraint("Horizontal", 3))
sketch13.addConstraint(Sketcher.Constraint("Coincident", 5, 3, -1, 1))
sketch13.addConstraint(Sketcher.Constraint("Equal", 4, 5))
sketch13.addConstraint(Sketcher.Constraint("Equal", 5, 6))
sketch13.addConstraint(Sketcher.Constraint("Equal", 6, 8))
sketch13.addConstraint(Sketcher.Constraint("PointOnObject", 4, 3, -1))
sketch13.addConstraint(Sketcher.Constraint("PointOnObject", 8, 3, -2))
sketch13.addConstraint(Sketcher.Constraint("Horizontal", 6, 3, 8, 3))
sketch13.addConstraint(Sketcher.Constraint("Vertical", 4, 3, 6, 3))
sketch13.addConstraint(Sketcher.Constraint("Equal", 3, 0))
sketch13.addConstraint(Sketcher.Constraint("Diameter", 7, Q("22 mm")))
sketch13.addConstraint(Sketcher.Constraint("Diameter", 4, Q("3.2 mm")))
sketch13.addConstraint(Sketcher.Constraint("DistanceX", 1, 2, 1, 1, Q("51 mm")))
sketch13.addConstraint(Sketcher.Constraint("DistanceX", -1, 1, 4, 3, Q("45 mm")))
sketch13.addConstraint(Sketcher.Constraint("DistanceY", -1, 1, 6, 3, Q("45 mm")))
sketch13.addConstraint(Sketcher.Constraint("DistanceX", -1, 1, 0, 2, Q("48 mm")))
sketch13.addConstraint(Sketcher.Constraint("DistanceY", 0, 2, -1, 1, Q("3 mm")))
sketch13.addConstraint(Sketcher.Constraint("DistanceX", -1, 1, 7, 3, Q("22.5 mm")))
sketch13.addConstraint(Sketcher.Constraint("DistanceY", -1, 1, 7, 3, Q("22.5 mm")))
pad9 = doc.addObject("PartDesign::Pad", "Pad008")
body.addObject(pad9)
pad9.Profile = sketch13
pad9.Length = 5

doc.recompute()
